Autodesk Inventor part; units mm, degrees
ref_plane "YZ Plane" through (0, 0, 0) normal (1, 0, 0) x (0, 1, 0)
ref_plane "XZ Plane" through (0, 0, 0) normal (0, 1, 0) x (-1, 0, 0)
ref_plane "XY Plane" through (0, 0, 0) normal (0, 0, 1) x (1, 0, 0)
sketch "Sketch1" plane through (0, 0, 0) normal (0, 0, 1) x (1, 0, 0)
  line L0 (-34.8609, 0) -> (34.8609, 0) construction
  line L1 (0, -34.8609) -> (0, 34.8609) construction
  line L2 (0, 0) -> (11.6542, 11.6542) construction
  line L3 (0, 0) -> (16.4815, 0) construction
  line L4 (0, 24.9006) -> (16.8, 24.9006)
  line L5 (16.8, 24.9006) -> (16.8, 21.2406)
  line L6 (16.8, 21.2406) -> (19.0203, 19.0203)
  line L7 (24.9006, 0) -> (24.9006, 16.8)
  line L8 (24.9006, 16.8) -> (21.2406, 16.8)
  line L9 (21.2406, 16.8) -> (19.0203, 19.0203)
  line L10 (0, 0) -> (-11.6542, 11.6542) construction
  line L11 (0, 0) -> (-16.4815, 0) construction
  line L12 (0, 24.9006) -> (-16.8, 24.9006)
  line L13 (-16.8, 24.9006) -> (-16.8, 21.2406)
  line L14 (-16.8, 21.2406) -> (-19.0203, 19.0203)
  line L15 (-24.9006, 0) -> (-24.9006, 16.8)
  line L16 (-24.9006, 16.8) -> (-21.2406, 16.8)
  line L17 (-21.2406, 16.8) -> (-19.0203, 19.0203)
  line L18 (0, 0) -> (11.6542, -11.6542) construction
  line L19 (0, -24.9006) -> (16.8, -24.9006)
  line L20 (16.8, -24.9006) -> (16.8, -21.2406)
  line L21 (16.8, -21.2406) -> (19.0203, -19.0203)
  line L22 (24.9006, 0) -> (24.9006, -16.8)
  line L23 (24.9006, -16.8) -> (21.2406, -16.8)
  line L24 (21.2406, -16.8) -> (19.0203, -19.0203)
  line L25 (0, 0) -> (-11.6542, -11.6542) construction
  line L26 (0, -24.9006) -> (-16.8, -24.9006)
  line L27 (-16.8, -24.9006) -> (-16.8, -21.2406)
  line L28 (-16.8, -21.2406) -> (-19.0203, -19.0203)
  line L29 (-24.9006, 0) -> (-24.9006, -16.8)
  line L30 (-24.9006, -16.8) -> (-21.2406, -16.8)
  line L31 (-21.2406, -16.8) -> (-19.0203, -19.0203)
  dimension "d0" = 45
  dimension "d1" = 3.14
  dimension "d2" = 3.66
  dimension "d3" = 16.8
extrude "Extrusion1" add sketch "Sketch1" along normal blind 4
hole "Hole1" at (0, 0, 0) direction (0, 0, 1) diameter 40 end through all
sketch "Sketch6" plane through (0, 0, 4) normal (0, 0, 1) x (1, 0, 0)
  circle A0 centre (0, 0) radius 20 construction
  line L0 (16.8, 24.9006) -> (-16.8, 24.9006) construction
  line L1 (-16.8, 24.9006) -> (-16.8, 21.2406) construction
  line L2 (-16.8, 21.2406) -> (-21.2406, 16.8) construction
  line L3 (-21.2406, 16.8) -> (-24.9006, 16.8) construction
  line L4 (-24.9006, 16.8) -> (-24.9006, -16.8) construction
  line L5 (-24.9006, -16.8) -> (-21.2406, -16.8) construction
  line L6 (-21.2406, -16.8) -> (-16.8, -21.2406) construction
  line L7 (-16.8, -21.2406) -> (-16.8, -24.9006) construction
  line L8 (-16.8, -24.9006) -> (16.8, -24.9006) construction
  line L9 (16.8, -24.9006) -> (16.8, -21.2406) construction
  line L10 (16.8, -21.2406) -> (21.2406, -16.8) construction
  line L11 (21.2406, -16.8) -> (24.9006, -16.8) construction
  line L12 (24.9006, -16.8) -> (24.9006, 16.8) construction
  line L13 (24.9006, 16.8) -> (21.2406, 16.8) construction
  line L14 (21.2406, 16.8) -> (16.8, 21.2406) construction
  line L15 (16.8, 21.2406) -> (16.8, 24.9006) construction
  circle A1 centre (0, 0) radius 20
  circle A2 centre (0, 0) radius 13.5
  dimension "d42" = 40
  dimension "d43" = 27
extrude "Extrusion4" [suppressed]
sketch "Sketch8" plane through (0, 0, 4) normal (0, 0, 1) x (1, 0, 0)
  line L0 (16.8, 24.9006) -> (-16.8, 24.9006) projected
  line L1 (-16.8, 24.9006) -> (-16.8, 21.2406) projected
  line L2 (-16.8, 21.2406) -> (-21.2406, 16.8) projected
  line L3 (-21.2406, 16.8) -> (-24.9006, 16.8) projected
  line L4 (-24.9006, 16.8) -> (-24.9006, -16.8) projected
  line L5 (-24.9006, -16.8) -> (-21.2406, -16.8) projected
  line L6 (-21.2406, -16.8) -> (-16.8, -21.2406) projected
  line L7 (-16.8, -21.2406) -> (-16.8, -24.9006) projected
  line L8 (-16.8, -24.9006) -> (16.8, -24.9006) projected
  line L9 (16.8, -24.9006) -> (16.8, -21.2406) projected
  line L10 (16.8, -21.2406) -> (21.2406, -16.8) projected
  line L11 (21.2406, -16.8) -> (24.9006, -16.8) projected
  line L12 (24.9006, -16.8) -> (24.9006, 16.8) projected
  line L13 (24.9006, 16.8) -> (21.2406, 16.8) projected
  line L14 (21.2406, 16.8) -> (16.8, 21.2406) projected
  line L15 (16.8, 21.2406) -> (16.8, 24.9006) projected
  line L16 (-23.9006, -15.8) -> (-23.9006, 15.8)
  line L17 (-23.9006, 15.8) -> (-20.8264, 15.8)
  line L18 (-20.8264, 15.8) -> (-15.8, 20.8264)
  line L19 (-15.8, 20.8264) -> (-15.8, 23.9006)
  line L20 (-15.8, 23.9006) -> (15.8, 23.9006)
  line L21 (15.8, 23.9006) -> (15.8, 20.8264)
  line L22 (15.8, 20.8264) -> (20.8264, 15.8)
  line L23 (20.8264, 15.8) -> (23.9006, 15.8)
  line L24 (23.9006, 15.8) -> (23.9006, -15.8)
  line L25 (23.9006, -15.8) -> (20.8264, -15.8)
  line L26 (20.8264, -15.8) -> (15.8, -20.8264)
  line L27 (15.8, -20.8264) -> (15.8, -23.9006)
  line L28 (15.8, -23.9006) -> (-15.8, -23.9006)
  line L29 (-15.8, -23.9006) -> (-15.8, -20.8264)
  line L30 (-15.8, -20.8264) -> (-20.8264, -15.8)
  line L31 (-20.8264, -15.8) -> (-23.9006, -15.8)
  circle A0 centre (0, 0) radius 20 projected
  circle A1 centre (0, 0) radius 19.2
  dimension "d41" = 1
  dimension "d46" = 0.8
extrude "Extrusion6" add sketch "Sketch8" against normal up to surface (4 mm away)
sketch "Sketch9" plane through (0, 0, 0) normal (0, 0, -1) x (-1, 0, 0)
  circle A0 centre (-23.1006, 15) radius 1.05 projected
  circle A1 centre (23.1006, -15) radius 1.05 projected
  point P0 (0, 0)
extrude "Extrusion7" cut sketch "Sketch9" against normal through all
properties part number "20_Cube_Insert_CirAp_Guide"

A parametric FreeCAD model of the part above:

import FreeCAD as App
import Part
import Sketcher

V = App.Vector
Q = App.Units.Quantity

doc = App.newDocument("Part")
body = doc.addObject("PartDesign::Body", "Body")

# Sketch on XY plane
sketch1 = body.newObject("Sketcher::SketchObject", "Sketch")
sketch1.AttachmentSupport = (doc.getObject("XY_Plane"), [""])
sketch1.MapMode = "FlatFace"
sketch1.addGeometry(Part.LineSegment(V(16.8, 24.9, 0), V(-16.8, 24.9, 0)), False)
sketch1.addGeometry(Part.LineSegment(V(-16.8, 24.9, 0), V(-16.8, 21.2, 0)), False)
sketch1.addGeometry(Part.LineSegment(V(-16.8, 21.2, 0), V(-21.2, 16.8, 0)), False)
sketch1.addGeometry(Part.LineSegment(V(-21.2, 16.8, 0), V(-24.9, 16.8, 0)), False)
sketch1.addGeometry(Part.LineSegment(V(-24.9, 16.8, 0), V(-24.9, -16.8, 0)), False)
sketch1.addGeometry(Part.LineSegment(V(-24.9, -16.8, 0), V(-21.2, -16.8, 0)), False)
sketch1.addGeometry(Part.LineSegment(V(-21.2, -16.8, 0), V(-16.8, -21.2, 0)), False)
sketch1.addGeometry(Part.LineSegment(V(-16.8, -21.2, 0), V(-16.8, -24.9, 0)), False)
sketch1.addGeometry(Part.LineSegment(V(-16.8, -24.9, 0), V(16.8, -24.9, 0)), False)
sketch1.addGeometry(Part.LineSegment(V(16.8, -24.9, 0), V(16.8, -21.2, 0)), False)
sketch1.addGeometry(Part.LineSegment(V(16.8, -21.2, 0), V(21.2, -16.8, 0)), False)
sketch1.addGeometry(Part.LineSegment(V(21.2, -16.8, 0), V(24.9, -16.8, 0)), False)
sketch1.addGeometry(Part.LineSegment(V(24.9, -16.8, 0), V(24.9, 16.8, 0)), False)
sketch1.addGeometry(Part.LineSegment(V(24.9, 16.8, 0), V(21.2, 16.8, 0)), False)
sketch1.addGeometry(Part.LineSegment(V(21.2, 16.8, 0), V(16.8, 21.2, 0)), False)
sketch1.addGeometry(Part.LineSegment(V(16.8, 21.2, 0), V(16.8, 24.9, 0)), False)
sketch1.addConstraint(Sketcher.Constraint("Coincident", 0, 2, 1, 1))
sketch1.addConstraint(Sketcher.Constraint("Coincident", 1, 2, 2, 1))
sketch1.addConstraint(Sketcher.Constraint("Coincident", 2, 2, 3, 1))
sketch1.addConstraint(Sketcher.Constraint("Coincident", 3, 2, 4, 1))
sketch1.addConstraint(Sketcher.Constraint("Coincident", 4, 2, 5, 1))
sketch1.addConstraint(Sketcher.Constraint("Coincident", 5, 2, 6, 1))
sketch1.addConstraint(Sketcher.Constraint("Coincident", 6, 2, 7, 1))
sketch1.addConstraint(Sketcher.Constraint("Coincident", 7, 2, 8, 1))
sketch1.addConstraint(Sketcher.Constraint("Coincident", 8, 2, 9, 1))
sketch1.addConstraint(Sketcher.Constraint("Coincident", 9, 2, 10, 1))
sketch1.addConstraint(Sketcher.Constraint("Coincident", 10, 2, 11, 1))
sketch1.addConstraint(Sketcher.Constraint("Coincident", 11, 2, 12, 1))
sketch1.addConstraint(Sketcher.Constraint("Coincident", 12, 2, 13, 1))
sketch1.addConstraint(Sketcher.Constraint("Coincident", 13, 2, 14, 1))
sketch1.addConstraint(Sketcher.Constraint("Coincident", 14, 2, 15, 1))
sketch1.addConstraint(Sketcher.Constraint("Coincident", 15, 2, 0, 1))
sketch1.addConstraint(Sketcher.Constraint("Horizontal", 0))
sketch1.addConstraint(Sketcher.Constraint("Vertical", 1))
sketch1.addConstraint(Sketcher.Constraint("Horizontal", 3))
sketch1.addConstraint(Sketcher.Constraint("Vertical", 4))
sketch1.addConstraint(Sketcher.Constraint("Horizontal", 5))
sketch1.addConstraint(Sketcher.Constraint("Vertical", 7))
sketch1.addConstraint(Sketcher.Constraint("Horizontal", 8))
sketch1.addConstraint(Sketcher.Constraint("Vertical", 9))
sketch1.addConstraint(Sketcher.Constraint("Horizontal", 11))
sketch1.addConstraint(Sketcher.Constraint("Vertical", 12))
sketch1.addConstraint(Sketcher.Constraint("Horizontal", 13))
sketch1.addConstraint(Sketcher.Constraint("Vertical", 15))
sketch1.addConstraint(Sketcher.Constraint("Symmetric", 0, 2, 8, 2, -1, 1))
sketch1.addConstraint(Sketcher.Constraint("Symmetric", 2, 2, 10, 2, -1, 1))
sketch1.addConstraint(Sketcher.Constraint("Symmetric", 4, 2, 12, 2, -1, 1))
sketch1.addConstraint(Sketcher.Constraint("Symmetric", 6, 2, 14, 2, -1, 1))
sketch1.addConstraint(Sketcher.Constraint("Symmetric", 6, 2, 9, 2, -2))
sketch1.addConstraint(Sketcher.Constraint("Symmetric", 5, 2, 10, 2, -2))
sketch1.addConstraint(Sketcher.Constraint("Perpendicular", 2, 6))
sketch1.addConstraint(Sketcher.Constraint("Perpendicular", 6, 10))
sketch1.addConstraint(Sketcher.Constraint("Perpendicular", 10, 14))
sketch1.addConstraint(Sketcher.Constraint("Equal", 13, 1))
sketch1.addConstraint(Sketcher.Constraint("Equal", 8, 4))
sketch1.addConstraint(Sketcher.Constraint("DistanceX", 3, 2, 3, 1, Q("3.66 mm")))
sketch1.addConstraint(Sketcher.Constraint("DistanceX", 0, 2, -1, 1, Q("16.8 mm")))
sketch1.addConstraint(Sketcher.Constraint("Distance", 2, Q("6.28 mm")))
pad1 = body.newObject("PartDesign::Pad", "Pad")
pad1.Profile = sketch1
pad1.Length = 4

# Sketch on XY plane
sketch2 = body.newObject("Sketcher::SketchObject", "Sketch001")
sketch2.AttachmentSupport = (doc.getObject("XY_Plane"), [""])
sketch2.MapMode = "FlatFace"
sketch2.addGeometry(Part.Circle(V(0, 0, 0), V(0, 0, 1), 20), False)
sketch2.addConstraint(Sketcher.Constraint("Coincident", 0, 3, -1, 1))
sketch2.addConstraint(Sketcher.Constraint("Diameter", 0, Q("40 mm")))
doc.recompute()
hole = body.newObject("PartDesign::Hole", "Hole")
hole.Profile = sketch2
hole.ThreadType = "None"
hole.Diameter = 40
hole.DepthType = "ThroughAll"
hole.Reversed = True

# Sketch on XY plane
sketch3 = body.newObject("Sketcher::SketchObject", "Sketch002")
sketch3.AttachmentSupport = (doc.getObject("XY_Plane"), [""])
sketch3.MapMode = "FlatFace"
sketch3.AttachmentOffset = App.Placement(V(0, 0, 4), App.Rotation())
sketch3.addGeometry(Part.LineSegment(V(16.8, 21.2, 0), V(16.8, 24.9, 0)), False)
sketch3.addGeometry(Part.LineSegment(V(16.8, 24.9, 0), V(-16.8, 24.9, 0)), False)
sketch3.addGeometry(Part.LineSegment(V(-16.8, 24.9, 0), V(-16.8, 21.2, 0)), False)
sketch3.addGeometry(Part.LineSegment(V(-16.8, 21.2, 0), V(-21.2, 16.8, 0)), False)
sketch3.addGeometry(Part.LineSegment(V(-21.2, 16.8, 0), V(-24.9, 16.8, 0)), False)
sketch3.addGeometry(Part.LineSegment(V(-24.9, 16.8, 0), V(-24.9, -16.8, 0)), False)
sketch3.addGeometry(Part.LineSegment(V(-24.9, -16.8, 0), V(-21.2, -16.8, 0)), False)
sketch3.addGeometry(Part.LineSegment(V(-21.2, -16.8, 0), V(-16.8, -21.2, 0)), False)
sketch3.addGeometry(Part.LineSegment(V(-16.8, -21.2, 0), V(-16.8, -24.9, 0)), False)
sketch3.addGeometry(Part.LineSegment(V(-16.8, -24.9, 0), V(16.8, -24.9, 0)), False)
sketch3.addGeometry(Part.LineSegment(V(16.8, -24.9, 0), V(16.8, -21.2, 0)), False)
sketch3.addGeometry(Part.LineSegment(V(16.8, -21.2, 0), V(21.2, -16.8, 0)), False)
sketch3.addGeometry(Part.LineSegment(V(21.2, -16.8, 0), V(24.9, -16.8, 0)), False)
sketch3.addGeometry(Part.LineSegment(V(24.9, -16.8, 0), V(24.9, 16.8, 0)), False)
sketch3.addGeometry(Part.LineSegment(V(24.9, 16.8, 0), V(21.2, 16.8, 0)), False)
sketch3.addGeometry(Part.LineSegment(V(21.2, 16.8, 0), V(16.8, 21.2, 0)), False)
sketch3.addGeometry(Part.LineSegment(V(-20.8, -15.8, 0), V(-23.9, -15.8, 0)), False)
sketch3.addGeometry(Part.LineSegment(V(-23.9, -15.8, 0), V(-23.9, 15.8, 0)), False)
sketch3.addGeometry(Part.LineSegment(V(-23.9, 15.8, 0), V(-20.8, 15.8, 0)), False)
sketch3.addGeometry(Part.LineSegment(V(-20.8, 15.8, 0), V(-15.8, 20.8, 0)), False)
sketch3.addGeometry(Part.LineSegment(V(-15.8, 20.8, 0), V(-15.8, 23.9, 0)), False)
sketch3.addGeometry(Part.LineSegment(V(-15.8, 23.9, 0), V(15.8, 23.9, 0)), False)
sketch3.addGeometry(Part.LineSegment(V(15.8, 23.9, 0), V(15.8, 20.8, 0)), False)
sketch3.addGeometry(Part.LineSegment(V(15.8, 20.8, 0), V(20.8, 15.8, 0)), False)
sketch3.addGeometry(Part.LineSegment(V(20.8, 15.8, 0), V(23.9, 15.8, 0)), False)
sketch3.addGeometry(Part.LineSegment(V(23.9, 15.8, 0), V(23.9, -15.8, 0)), False)
sketch3.addGeometry(Part.LineSegment(V(23.9, -15.8, 0), V(20.8, -15.8, 0)), False)
sketch3.addGeometry(Part.LineSegment(V(20.8, -15.8, 0), V(15.8, -20.8, 0)), False)
sketch3.addGeometry(Part.LineSegment(V(15.8, -20.8, 0), V(15.8, -23.9, 0)), False)
sketch3.addGeometry(Part.LineSegment(V(15.8, -23.9, 0), V(-15.8, -23.9, 0)), False)
sketch3.addGeometry(Part.LineSegment(V(-15.8, -23.9, 0), V(-15.8, -20.8, 0)), False)
sketch3.addGeometry(Part.LineSegment(V(-15.8, -20.8, 0), V(-20.8, -15.8, 0)), False)
sketch3.addGeometry(Part.Circle(V(0, 0, 0), V(0, 0, 1), 20), False)
sketch3.addGeometry(Part.Circle(V(0, 0, 0), V(0, 0, 1), 19.2), False)
sketch3.addConstraint(Sketcher.Constraint("Coincident", 0, 2, 1, 1))
sketch3.addConstraint(Sketcher.Constraint("Coincident", 1, 2, 2, 1))
sketch3.addConstraint(Sketcher.Constraint("Coincident", 2, 2, 3, 1))
sketch3.addConstraint(Sketcher.Constraint("Coincident", 3, 2, 4, 1))
sketch3.addConstraint(Sketcher.Constraint("Coincident", 4, 2, 5, 1))
sketch3.addConstraint(Sketcher.Constraint("Coincident", 5, 2, 6, 1))
sketch3.addConstraint(Sketcher.Constraint("Coincident", 6, 2, 7, 1))
sketch3.addConstraint(Sketcher.Constraint("Coincident", 7, 2, 8, 1))
sketch3.addConstraint(Sketcher.Constraint("Coincident", 8, 2, 9, 1))
sketch3.addConstraint(Sketcher.Constraint("Coincident", 9, 2, 10, 1))
sketch3.addConstraint(Sketcher.Constraint("Coincident", 10, 2, 11, 1))
sketch3.addConstraint(Sketcher.Constraint("Coincident", 11, 2, 12, 1))
sketch3.addConstraint(Sketcher.Constraint("Coincident", 12, 2, 13, 1))
sketch3.addConstraint(Sketcher.Constraint("Coincident", 13, 2, 14, 1))
sketch3.addConstraint(Sketcher.Constraint("Coincident", 14, 2, 15, 1))
sketch3.addConstraint(Sketcher.Constraint("Coincident", 15, 2, 0, 1))
sketch3.addConstraint(Sketcher.Constraint("Coincident", 16, 2, 17, 1))
sketch3.addConstraint(Sketcher.Constraint("Coincident", 17, 2, 18, 1))
sketch3.addConstraint(Sketcher.Constraint("Coincident", 18, 2, 19, 1))
sketch3.addConstraint(Sketcher.Constraint("Coincident", 19, 2, 20, 1))
sketch3.addConstraint(Sketcher.Constraint("Coincident", 20, 2, 21, 1))
sketch3.addConstraint(Sketcher.Constraint("Coincident", 21, 2, 22, 1))
sketch3.addConstraint(Sketcher.Constraint("Coincident", 22, 2, 23, 1))
sketch3.addConstraint(Sketcher.Constraint("Coincident", 23, 2, 24, 1))
sketch3.addConstraint(Sketcher.Constraint("Coincident", 24, 2, 25, 1))
sketch3.addConstraint(Sketcher.Constraint("Coincident", 25, 2, 26, 1))
sketch3.addConstraint(Sketcher.Constraint("Coincident", 26, 2, 27, 1))
sketch3.addConstraint(Sketcher.Constraint("Coincident", 27, 2, 28, 1))
sketch3.addConstraint(Sketcher.Constraint("Coincident", 28, 2, 29, 1))
sketch3.addConstraint(Sketcher.Constraint("Coincident", 29, 2, 30, 1))
sketch3.addConstraint(Sketcher.Constraint("Coincident", 30, 2, 31, 1))
sketch3.addConstraint(Sketcher.Constraint("Coincident", 31, 2, 16, 1))
sketch3.addConstraint(Sketcher.Constraint("Vertical", 0))
sketch3.addConstraint(Sketcher.Constraint("Horizontal", 1))
sketch3.addConstraint(Sketcher.Constraint("Vertical", 2))
sketch3.addConstraint(Sketcher.Constraint("Horizontal", 4))
sketch3.addConstraint(Sketcher.Constraint("Vertical", 5))
sketch3.addConstraint(Sketcher.Constraint("Horizontal", 6))
sketch3.addConstraint(Sketcher.Constraint("Vertical", 8))
sketch3.addConstraint(Sketcher.Constraint("Horizontal", 9))
sketch3.addConstraint(Sketcher.Constraint("Vertical", 10))
sketch3.addConstraint(Sketcher.Constraint("Horizontal", 12))
sketch3.addConstraint(Sketcher.Constraint("Vertical", 13))
sketch3.addConstraint(Sketcher.Constraint("Horizontal", 14))
sketch3.addConstraint(Sketcher.Constraint("Horizontal", 16))
sketch3.addConstraint(Sketcher.Constraint("Vertical", 17))
sketch3.addConstraint(Sketcher.Constraint("Horizontal", 18))
sketch3.addConstraint(Sketcher.Constraint("Vertical", 20))
sketch3.addConstraint(Sketcher.Constraint("Horizontal", 21))
sketch3.addConstraint(Sketcher.Constraint("Vertical", 22))
sketch3.addConstraint(Sketcher.Constraint("Horizontal", 24))
sketch3.addConstraint(Sketcher.Constraint("Vertical", 25))
sketch3.addConstraint(Sketcher.Constraint("Horizontal", 26))
sketch3.addConstraint(Sketcher.Constraint("Vertical", 28))
sketch3.addConstraint(Sketcher.Constraint("Horizontal", 29))
sketch3.addConstraint(Sketcher.Constraint("Vertical", 30))
sketch3.addConstraint(Sketcher.Constraint("Coincident", 32, 3, -1, 1))
sketch3.addConstraint(Sketcher.Constraint("Coincident", 33, 3, -1, 1))
sketch3.addConstraint(Sketcher.Constraint("Symmetric", 0, 2, 8, 2, -1, 1))
sketch3.addConstraint(Sketcher.Constraint("Symmetric", 2, 2, 10, 2, -1, 1))
sketch3.addConstraint(Sketcher.Constraint("Symmetric", 3, 2, 11, 2, -1, 1))
sketch3.addConstraint(Sketcher.Constraint("Symmetric", 5, 2, 13, 2, -1, 1))
sketch3.addConstraint(Sketcher.Constraint("Symmetric", 16, 2, 24, 2, -1, 1))
sketch3.addConstraint(Sketcher.Constraint("Symmetric", 18, 2, 26, 2, -1, 1))
sketch3.addConstraint(Sketcher.Constraint("Symmetric", 19, 2, 27, 2, -1, 1))
sketch3.addConstraint(Sketcher.Constraint("Symmetric", 21, 2, 29, 2, -1, 1))
sketch3.addConstraint(Sketcher.Constraint("Symmetric", 7, 2, 10, 2, -2))
sketch3.addConstraint(Sketcher.Constraint("Symmetric", 6, 2, 11, 2, -2))
sketch3.addConstraint(Sketcher.Constraint("Symmetric", 19, 2, 22, 2, -2))
sketch3.addConstraint(Sketcher.Constraint("Symmetric", 18, 2, 23, 2, -2))
sketch3.addConstraint(Sketcher.Constraint("Perpendicular", 3, 7))
sketch3.addConstraint(Sketcher.Constraint("Perpendicular", 11, 15))
sketch3.addConstraint(Sketcher.Constraint("Perpendicular", 15, 19))
sketch3.addConstraint(Sketcher.Constraint("Perpendicular", 27, 31))
sketch3.addConstraint(Sketcher.Constraint("Horizontal", 2, 2, 15, 2))
sketch3.addConstraint(Sketcher.Constraint("Horizontal", 27, 2, 30, 2))
sketch3.addConstraint(Sketcher.Constraint("Equal", 14, 0))
sketch3.addConstraint(Sketcher.Constraint("Equal", 9, 5))
sketch3.addConstraint(Sketcher.Constraint("Equal", 29, 17))
sketch3.addConstraint(Sketcher.Constraint("Equal", 26, 20))
sketch3.addConstraint(Sketcher.Constraint("Diameter", 32, Q("40 mm")))
sketch3.addConstraint(Sketcher.Constraint("DistanceX", 5, 2, 16, 2, Q("1 mm")))
sketch3.addConstraint(Sketcher.Constraint("DistanceY", 5, 2, 16, 2, Q("1 mm")))
sketch3.addConstraint(Sketcher.Constraint("Diameter", 33, Q("38.4 mm")))
sketch3.addConstraint(Sketcher.Constraint("DistanceX", 1, 2, 1, 1, Q("33.6 mm")))
sketch3.addConstraint(Sketcher.Constraint("DistanceX", 4, 2, 4, 1, Q("3.66 mm")))
sketch3.addConstraint(Sketcher.Constraint("Distance", 3, Q("6.28 mm")))
sketch3.addConstraint(Sketcher.Constraint("DistanceX", 16, 2, 16, 1, Q("3.0742 mm")))
pad2 = body.newObject("PartDesign::Pad", "Pad001")
pad2.Profile = sketch3
pad2.Length = 4
pad2.Reversed = True

# Sketch on XY plane
sketch4 = body.newObject("Sketcher::SketchObject", "Sketch003")
sketch4.AttachmentSupport = (doc.getObject("XY_Plane"), [""])
sketch4.MapMode = "FlatFace"
sketch4.addGeometry(Part.Circle(V(23.1, 15, 0), V(0, 0, 1), 1.1), False)
sketch4.addGeometry(Part.Circle(V(-23.1, -15, 0), V(0, 0, 1), 1.1), False)
sketch4.addConstraint(Sketcher.Constraint("Equal", 0, 1))
sketch4.addConstraint(Sketcher.Constraint("Symmetric", 0, 3, 1, 3, -1, 1))
sketch4.addConstraint(Sketcher.Constraint("Diameter", 0, Q("2.1 mm")))
sketch4.addConstraint(Sketcher.Constraint("DistanceY", -1, 1, 0, 3, Q("15 mm")))
sketch4.addConstraint(Sketcher.Constraint("DistanceX", -1, 1, 0, 3, Q("23.1006 mm")))
pocket1 = body.newObject("PartDesign::Pocket", "Pocket")
pocket1.Profile = sketch4
pocket1.Type = "ThroughAll"
pocket1.Reversed = True

doc.recompute()
